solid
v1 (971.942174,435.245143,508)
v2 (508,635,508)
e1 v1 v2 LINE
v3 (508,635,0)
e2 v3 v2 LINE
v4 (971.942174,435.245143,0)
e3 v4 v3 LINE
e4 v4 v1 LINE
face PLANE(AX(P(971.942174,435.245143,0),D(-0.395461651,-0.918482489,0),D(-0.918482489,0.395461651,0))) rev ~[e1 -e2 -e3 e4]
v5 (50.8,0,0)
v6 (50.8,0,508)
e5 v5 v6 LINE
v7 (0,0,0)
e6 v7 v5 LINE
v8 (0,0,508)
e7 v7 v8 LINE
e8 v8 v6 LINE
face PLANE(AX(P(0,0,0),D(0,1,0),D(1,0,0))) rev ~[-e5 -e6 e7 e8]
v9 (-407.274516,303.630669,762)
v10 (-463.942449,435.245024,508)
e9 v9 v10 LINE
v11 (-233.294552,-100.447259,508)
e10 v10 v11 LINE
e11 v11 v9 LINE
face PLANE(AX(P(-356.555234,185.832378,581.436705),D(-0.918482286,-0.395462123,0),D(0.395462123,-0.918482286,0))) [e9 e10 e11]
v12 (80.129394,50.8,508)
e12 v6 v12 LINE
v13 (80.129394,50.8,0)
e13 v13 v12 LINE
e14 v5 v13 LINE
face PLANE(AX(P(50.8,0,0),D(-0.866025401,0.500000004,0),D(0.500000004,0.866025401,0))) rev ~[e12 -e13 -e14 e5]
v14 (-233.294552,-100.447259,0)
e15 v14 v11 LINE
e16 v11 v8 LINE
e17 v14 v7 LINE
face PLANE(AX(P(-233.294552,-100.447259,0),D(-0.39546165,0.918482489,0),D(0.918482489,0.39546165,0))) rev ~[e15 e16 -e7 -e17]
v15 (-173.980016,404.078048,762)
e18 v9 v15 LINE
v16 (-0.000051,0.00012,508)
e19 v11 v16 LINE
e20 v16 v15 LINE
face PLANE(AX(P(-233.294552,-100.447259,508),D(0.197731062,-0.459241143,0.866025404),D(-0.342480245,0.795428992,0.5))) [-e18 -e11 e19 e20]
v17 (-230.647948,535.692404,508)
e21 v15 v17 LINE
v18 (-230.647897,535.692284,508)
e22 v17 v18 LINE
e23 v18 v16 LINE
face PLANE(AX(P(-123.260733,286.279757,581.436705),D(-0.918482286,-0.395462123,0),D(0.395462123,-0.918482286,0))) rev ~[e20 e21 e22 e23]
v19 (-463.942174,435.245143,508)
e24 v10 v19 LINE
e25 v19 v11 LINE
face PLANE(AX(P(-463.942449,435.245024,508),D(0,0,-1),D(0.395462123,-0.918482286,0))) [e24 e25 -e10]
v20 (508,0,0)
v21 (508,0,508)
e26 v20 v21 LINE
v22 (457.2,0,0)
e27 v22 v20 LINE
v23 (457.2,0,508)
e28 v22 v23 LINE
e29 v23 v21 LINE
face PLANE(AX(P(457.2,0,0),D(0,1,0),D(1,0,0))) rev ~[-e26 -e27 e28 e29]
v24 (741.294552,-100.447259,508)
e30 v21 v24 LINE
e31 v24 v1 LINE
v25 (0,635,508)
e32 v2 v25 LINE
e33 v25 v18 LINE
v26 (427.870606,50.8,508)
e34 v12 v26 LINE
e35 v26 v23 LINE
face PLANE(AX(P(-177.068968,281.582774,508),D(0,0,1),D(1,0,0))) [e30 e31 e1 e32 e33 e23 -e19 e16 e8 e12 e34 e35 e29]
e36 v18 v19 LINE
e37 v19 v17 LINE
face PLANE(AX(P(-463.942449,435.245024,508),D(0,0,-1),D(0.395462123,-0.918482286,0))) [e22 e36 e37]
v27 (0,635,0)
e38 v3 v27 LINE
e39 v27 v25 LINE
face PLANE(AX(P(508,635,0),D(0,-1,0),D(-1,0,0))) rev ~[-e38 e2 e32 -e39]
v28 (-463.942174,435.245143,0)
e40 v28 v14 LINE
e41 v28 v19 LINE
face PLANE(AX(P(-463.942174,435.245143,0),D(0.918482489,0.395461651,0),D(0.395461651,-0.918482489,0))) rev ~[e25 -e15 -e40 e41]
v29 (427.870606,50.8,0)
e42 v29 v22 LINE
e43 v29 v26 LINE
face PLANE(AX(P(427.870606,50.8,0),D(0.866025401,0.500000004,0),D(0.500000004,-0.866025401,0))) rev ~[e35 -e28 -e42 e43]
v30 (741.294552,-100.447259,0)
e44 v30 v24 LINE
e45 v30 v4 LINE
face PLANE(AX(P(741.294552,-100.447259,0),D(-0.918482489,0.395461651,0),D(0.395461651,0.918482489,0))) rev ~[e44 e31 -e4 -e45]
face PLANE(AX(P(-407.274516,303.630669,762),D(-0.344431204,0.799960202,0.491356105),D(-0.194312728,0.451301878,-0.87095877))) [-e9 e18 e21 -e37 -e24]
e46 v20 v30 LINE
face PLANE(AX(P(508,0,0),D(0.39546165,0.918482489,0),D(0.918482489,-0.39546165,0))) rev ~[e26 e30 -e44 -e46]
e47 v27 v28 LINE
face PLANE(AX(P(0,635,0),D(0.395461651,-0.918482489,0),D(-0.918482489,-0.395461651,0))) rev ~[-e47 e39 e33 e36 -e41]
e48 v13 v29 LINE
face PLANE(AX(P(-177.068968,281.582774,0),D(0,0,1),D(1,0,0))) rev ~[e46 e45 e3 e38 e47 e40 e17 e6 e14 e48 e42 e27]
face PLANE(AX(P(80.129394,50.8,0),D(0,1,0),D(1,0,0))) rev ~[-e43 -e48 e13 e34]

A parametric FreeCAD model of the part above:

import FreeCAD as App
import Part
import Sketcher
Q = App.Units.Quantity

doc = App.newDocument("Part")
body = doc.addObject("PartDesign::Body", "Body")

sketch1 = body.newObject("Sketcher::SketchObject", "Sketch")
sketch1.AttachmentSupport = (doc.getObject("XY_Plane"), [""])
sketch1.MapMode = "FlatFace"
sketch1.addGeometry([
    Part.LineSegment(App.Vector(-233, -100, 0), App.Vector(0, 0, 0)),
    Part.LineSegment(App.Vector(0, 0, 0), App.Vector(51, 0, 0)),
    Part.LineSegment(App.Vector(51, 0, 0), App.Vector(80, 51, 0)),
    Part.LineSegment(App.Vector(80, 51, 0), App.Vector(428, 51, 0)),
    Part.LineSegment(App.Vector(428, 51, 0), App.Vector(457, 0, 0)),
    Part.LineSegment(App.Vector(457, 0, 0), App.Vector(508, 0, 0)),
    Part.LineSegment(App.Vector(508, 0, 0), App.Vector(741, -100, 0)),
    Part.LineSegment(App.Vector(741, -100, 0), App.Vector(972, 435, 0)),
    Part.LineSegment(App.Vector(972, 435, 0), App.Vector(508, 635, 0)),
    Part.LineSegment(App.Vector(508, 635, 0), App.Vector(0, 635, 0)),
    Part.LineSegment(App.Vector(0, 635, 0), App.Vector(-464, 435, 0)),
    Part.LineSegment(App.Vector(-464, 435, 0), App.Vector(-233, -100, 0)),
], False)
sketch1.addConstraint([
    Sketcher.Constraint("Coincident", 0, 2, 1, 1),
    Sketcher.Constraint("Coincident", 1, 2, 2, 1),
    Sketcher.Constraint("Coincident", 2, 2, 3, 1),
    Sketcher.Constraint("Coincident", 3, 2, 4, 1),
    Sketcher.Constraint("Coincident", 4, 2, 5, 1),
    Sketcher.Constraint("Coincident", 5, 2, 6, 1),
    Sketcher.Constraint("Coincident", 6, 2, 7, 1),
    Sketcher.Constraint("Coincident", 7, 2, 8, 1),
    Sketcher.Constraint("Coincident", 8, 2, 9, 1),
    Sketcher.Constraint("Coincident", 9, 2, 10, 1),
    Sketcher.Constraint("Coincident", 10, 2, 11, 1),
    Sketcher.Constraint("Coincident", 11, 2, 0, 1),
    Sketcher.Constraint("Horizontal", 1),
    Sketcher.Constraint("Horizontal", 3),
    Sketcher.Constraint("Horizontal", 5),
    Sketcher.Constraint("Horizontal", 9),
    Sketcher.Constraint("Coincident", 0, 2, -1, 1),
    Sketcher.Constraint("PointOnObject", 4, 2, -1),
    Sketcher.Constraint("PointOnObject", 9, 2, -2),
    Sketcher.Constraint("Perpendicular", 6, 7),
    Sketcher.Constraint("Perpendicular", 7, 8),
    Sketcher.Constraint("Parallel", 0, 10),
    Sketcher.Constraint("Perpendicular", 10, 11),
    Sketcher.Constraint("Horizontal", 7, 2, 10, 2),
    Sketcher.Constraint("Horizontal", 6, 2, 11, 2),
    Sketcher.Constraint("Vertical", 5, 2, 8, 2),
    Sketcher.Constraint("Equal", 1, 5),
    Sketcher.Constraint("Equal", 2, 4),
    Sketcher.Constraint("DistanceX", 1, 1, 1, 2, Q("2 in")),
    Sketcher.Constraint("DistanceX", 9, 2, 9, 1, Q("20 in")),
    Sketcher.Constraint("Distance", 0, Q("10 in")),
    Sketcher.Constraint("DistanceY", -1, 1, 2, 2, Q("2 in")),
    Sketcher.Constraint("DistanceY", -1, 1, 8, 2, Q("25 in")),
    Sketcher.Constraint("Angle", 2, Q("60 deg")),
    Sketcher.Constraint("DistanceY", 6, 2, 7, 2, Q("535.692402 mm")),
])
pad1 = body.newObject("PartDesign::Pad", "Pad")
pad1.Profile = sketch1
pad1.Length = Q("20 in")

sketch2 = body.newObject("Sketcher::SketchObject", "Sketch001")
sketch2.Placement = App.Placement(App.Vector(-233.294552, -100.447259, 0), App.Rotation(App.Vector(0.395462123, -0.918482286, 0), App.Vector(0, 0, 1), App.Vector(-0.918482286, -0.395462123, 0), "ZXY"))
sketch2.addGeometry([
    Part.LineSegment(App.Vector(-583, 508, 0), App.Vector(0, 508, 0)),
    Part.LineSegment(App.Vector(0, 508, 0), App.Vector(-440, 762, 0)),
    Part.LineSegment(App.Vector(-440, 762, 0), App.Vector(-583, 508, 0)),
], False)
sketch2.addConstraint([
    Sketcher.Constraint("Coincident", 0, 2, 1, 1),
    Sketcher.Constraint("Coincident", 1, 2, 2, 1),
    Sketcher.Constraint("Coincident", 2, 2, 0, 1),
    Sketcher.Constraint("Horizontal", 0),
    Sketcher.Constraint("PointOnObject", 0, 2, -2),
    Sketcher.Constraint("Distance", 1, Q("20 in")),
    Sketcher.Constraint("DistanceY", -1, 1, 0, 2, Q("20 in")),
    Sketcher.Constraint("DistanceY", -1, 1, 1, 2, Q("30 in")),
    Sketcher.Constraint("DistanceX", 0, 1, 0, 2, Q("583.23638 mm")),
])
pad2 = body.newObject("PartDesign::Pad", "Pad001")
pad2.Profile = sketch2
pad2.Length = Q("10 in")
pad2.Reversed = True

doc.recompute()
